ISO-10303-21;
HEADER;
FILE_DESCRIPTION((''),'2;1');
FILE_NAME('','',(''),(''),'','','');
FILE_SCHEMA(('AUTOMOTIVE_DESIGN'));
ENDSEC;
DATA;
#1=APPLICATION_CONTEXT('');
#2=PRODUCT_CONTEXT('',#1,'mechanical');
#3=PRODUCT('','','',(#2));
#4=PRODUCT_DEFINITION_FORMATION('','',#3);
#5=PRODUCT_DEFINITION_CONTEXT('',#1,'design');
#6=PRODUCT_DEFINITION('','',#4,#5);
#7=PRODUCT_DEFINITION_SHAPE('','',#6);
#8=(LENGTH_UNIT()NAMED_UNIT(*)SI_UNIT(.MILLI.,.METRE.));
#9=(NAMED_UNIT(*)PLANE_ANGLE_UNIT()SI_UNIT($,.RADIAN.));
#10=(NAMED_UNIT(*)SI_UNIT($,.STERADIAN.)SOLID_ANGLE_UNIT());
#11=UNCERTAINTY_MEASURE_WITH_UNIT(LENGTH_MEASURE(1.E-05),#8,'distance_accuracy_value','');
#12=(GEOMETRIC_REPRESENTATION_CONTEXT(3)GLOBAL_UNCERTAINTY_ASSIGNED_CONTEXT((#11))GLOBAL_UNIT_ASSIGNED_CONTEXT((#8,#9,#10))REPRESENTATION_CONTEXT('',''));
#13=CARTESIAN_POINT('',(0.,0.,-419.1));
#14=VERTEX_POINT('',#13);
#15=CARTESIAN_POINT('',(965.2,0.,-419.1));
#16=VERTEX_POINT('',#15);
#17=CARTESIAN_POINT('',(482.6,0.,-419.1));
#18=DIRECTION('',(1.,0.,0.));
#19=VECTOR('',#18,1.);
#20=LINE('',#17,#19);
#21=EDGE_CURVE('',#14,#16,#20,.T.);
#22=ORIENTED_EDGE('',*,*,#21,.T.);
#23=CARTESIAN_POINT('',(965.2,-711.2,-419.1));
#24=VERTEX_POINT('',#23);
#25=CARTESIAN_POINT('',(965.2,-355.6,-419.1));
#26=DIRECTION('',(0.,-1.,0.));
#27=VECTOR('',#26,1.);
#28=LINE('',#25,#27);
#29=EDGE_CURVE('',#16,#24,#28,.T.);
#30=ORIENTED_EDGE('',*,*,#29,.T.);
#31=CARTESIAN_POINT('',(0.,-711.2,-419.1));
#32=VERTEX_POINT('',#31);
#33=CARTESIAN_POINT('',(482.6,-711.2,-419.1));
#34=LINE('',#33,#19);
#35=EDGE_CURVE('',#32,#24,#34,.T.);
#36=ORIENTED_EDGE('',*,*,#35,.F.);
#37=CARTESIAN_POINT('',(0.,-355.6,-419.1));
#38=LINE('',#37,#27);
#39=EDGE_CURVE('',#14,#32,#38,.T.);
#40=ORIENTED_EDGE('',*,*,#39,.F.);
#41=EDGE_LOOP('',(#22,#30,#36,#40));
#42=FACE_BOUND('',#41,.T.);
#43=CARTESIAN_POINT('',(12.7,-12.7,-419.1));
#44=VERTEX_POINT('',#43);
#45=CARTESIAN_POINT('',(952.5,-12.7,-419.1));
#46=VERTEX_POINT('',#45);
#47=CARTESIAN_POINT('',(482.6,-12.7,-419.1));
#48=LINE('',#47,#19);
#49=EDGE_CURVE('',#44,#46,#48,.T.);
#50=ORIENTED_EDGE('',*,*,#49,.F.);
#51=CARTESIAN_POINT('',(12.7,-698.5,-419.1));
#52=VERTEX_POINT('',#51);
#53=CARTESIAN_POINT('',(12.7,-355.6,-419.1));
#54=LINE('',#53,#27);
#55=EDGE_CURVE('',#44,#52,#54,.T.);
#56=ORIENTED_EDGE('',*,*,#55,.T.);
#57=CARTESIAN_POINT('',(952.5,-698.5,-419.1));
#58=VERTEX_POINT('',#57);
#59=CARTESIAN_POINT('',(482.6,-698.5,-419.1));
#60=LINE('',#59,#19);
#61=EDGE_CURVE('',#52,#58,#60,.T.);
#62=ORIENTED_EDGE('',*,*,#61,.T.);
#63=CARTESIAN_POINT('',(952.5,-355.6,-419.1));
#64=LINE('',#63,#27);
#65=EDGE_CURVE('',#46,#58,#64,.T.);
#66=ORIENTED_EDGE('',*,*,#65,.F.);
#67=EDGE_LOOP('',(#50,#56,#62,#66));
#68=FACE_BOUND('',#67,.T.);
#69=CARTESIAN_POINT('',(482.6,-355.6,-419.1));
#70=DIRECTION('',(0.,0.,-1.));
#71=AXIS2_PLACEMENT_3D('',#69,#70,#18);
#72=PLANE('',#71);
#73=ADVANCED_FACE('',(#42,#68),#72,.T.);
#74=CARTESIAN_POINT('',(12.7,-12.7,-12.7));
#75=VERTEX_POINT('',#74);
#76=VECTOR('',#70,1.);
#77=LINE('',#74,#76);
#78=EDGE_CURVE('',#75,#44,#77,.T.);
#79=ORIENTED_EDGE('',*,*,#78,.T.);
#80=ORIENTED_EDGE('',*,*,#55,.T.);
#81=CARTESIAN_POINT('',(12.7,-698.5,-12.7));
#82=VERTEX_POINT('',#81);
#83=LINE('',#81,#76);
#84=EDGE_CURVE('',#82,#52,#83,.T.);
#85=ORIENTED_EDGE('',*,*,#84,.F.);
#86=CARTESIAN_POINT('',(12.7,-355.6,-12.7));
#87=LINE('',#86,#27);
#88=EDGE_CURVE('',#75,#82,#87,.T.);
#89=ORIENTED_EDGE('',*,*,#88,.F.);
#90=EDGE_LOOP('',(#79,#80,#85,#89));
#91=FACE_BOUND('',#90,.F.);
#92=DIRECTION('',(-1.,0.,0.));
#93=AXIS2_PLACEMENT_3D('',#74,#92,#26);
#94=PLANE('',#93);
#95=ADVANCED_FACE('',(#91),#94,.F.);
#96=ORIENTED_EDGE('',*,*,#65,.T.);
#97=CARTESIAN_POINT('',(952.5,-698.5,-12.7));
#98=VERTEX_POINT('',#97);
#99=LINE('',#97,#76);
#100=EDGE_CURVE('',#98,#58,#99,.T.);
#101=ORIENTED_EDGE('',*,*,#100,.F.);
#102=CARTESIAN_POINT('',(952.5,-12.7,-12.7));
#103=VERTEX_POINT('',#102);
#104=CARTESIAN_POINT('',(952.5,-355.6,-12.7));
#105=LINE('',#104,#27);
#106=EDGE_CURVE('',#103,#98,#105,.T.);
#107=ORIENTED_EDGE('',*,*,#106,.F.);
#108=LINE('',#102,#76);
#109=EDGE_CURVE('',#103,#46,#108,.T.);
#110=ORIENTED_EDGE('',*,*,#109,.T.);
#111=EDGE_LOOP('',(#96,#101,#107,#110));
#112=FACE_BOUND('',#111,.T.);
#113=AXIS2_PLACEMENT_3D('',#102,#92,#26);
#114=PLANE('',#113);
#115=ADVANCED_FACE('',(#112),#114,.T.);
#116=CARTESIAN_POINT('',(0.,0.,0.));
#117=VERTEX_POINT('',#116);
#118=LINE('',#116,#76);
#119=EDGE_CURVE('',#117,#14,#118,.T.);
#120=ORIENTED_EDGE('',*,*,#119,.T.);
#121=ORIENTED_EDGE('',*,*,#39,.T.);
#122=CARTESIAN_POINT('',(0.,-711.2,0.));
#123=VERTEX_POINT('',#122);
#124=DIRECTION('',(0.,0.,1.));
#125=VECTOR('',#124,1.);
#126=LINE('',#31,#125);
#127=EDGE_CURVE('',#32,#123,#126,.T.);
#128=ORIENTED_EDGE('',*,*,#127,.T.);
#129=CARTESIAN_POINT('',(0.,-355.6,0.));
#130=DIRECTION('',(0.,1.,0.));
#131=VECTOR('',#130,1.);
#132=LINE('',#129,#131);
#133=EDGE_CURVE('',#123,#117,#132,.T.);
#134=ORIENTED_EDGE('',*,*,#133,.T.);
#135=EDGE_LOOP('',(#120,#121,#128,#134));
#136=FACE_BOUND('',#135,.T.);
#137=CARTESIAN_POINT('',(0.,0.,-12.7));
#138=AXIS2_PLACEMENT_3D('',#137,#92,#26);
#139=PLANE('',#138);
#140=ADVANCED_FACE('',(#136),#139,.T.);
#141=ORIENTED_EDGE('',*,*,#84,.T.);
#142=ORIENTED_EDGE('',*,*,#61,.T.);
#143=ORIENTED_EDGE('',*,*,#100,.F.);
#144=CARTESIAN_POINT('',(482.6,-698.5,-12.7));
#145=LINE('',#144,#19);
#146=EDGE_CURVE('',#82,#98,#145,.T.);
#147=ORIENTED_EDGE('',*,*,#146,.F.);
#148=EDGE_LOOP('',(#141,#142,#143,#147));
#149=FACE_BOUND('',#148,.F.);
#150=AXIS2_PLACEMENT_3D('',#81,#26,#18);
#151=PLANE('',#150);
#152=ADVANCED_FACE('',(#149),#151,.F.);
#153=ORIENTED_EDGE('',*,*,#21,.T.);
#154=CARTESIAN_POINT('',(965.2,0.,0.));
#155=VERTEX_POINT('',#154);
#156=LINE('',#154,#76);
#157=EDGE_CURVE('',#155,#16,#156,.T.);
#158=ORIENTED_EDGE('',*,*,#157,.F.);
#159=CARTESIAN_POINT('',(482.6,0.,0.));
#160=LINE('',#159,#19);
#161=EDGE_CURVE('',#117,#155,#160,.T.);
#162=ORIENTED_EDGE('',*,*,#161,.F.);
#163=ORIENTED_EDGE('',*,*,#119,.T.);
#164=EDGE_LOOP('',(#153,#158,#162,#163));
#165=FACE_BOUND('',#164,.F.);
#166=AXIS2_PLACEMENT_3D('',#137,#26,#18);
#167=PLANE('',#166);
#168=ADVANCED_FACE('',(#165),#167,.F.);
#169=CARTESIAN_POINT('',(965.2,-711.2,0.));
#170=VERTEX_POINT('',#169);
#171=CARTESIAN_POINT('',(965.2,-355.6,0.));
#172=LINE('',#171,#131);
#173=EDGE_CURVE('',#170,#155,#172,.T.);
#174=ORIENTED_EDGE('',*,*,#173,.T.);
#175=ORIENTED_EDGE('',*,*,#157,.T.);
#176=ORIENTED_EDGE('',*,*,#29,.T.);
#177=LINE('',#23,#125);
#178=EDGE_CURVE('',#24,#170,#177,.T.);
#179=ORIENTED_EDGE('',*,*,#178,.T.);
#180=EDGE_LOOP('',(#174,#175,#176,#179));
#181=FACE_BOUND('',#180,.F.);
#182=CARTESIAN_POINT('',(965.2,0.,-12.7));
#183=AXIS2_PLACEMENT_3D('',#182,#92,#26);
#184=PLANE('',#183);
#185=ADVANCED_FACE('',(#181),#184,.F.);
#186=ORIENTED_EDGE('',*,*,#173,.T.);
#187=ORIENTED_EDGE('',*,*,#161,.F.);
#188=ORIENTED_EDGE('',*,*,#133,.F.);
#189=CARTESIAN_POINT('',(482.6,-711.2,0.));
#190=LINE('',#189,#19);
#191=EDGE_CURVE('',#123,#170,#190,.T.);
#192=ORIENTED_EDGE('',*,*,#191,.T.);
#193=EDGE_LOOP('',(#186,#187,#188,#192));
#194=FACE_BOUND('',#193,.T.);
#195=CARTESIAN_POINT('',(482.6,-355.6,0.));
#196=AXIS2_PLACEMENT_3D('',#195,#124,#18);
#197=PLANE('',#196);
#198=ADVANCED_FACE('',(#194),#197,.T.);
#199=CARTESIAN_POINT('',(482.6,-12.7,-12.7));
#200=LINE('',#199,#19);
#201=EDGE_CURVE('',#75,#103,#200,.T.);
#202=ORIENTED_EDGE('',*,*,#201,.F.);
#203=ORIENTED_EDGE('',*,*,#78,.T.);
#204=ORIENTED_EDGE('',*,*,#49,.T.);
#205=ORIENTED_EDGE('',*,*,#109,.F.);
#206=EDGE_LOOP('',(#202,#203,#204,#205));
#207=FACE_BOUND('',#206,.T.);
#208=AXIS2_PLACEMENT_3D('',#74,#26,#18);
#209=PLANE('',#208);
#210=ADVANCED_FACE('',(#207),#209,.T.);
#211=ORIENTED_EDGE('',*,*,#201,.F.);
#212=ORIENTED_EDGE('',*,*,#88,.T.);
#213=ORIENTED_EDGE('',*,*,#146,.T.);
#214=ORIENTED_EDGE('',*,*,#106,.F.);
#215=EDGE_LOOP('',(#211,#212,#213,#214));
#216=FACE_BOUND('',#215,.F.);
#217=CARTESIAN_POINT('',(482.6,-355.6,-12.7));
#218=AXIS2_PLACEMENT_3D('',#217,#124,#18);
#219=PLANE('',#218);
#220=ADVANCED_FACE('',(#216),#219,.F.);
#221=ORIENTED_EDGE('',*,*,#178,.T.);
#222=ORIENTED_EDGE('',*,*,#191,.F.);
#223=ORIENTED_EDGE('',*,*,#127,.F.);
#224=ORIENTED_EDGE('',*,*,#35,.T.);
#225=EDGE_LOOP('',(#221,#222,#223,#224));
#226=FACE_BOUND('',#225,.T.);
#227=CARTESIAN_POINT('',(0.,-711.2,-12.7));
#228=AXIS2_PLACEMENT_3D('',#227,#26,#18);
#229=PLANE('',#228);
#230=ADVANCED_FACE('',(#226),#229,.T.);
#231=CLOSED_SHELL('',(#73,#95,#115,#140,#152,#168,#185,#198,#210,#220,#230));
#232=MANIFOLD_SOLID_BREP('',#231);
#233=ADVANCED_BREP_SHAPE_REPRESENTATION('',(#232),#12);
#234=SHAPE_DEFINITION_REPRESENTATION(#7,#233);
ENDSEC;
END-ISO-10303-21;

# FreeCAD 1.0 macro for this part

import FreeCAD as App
import Part
import Sketcher
from FreeCAD import Vector
Q = App.Units.Quantity

doc = App.newDocument("Part")
body = doc.addObject("PartDesign::Body", "Body")

sketch1 = body.newObject("Sketcher::SketchObject", "Sketch")
sketch1.AttachmentSupport = (doc.getObject("XY_Plane"), [""])
sketch1.MapMode = "FlatFace"
sketch1.addGeometry(Part.LineSegment(Vector(0, 0, 0), Vector(0, -711.2, 0)), False)
sketch1.addGeometry(Part.LineSegment(Vector(0, -711.2, 0), Vector(965.2, -711.2, 0)), False)
sketch1.addGeometry(Part.LineSegment(Vector(965.2, -711.2, 0), Vector(965.2, 0, 0)), False)
sketch1.addGeometry(Part.LineSegment(Vector(965.2, 0, 0), Vector(0, 0, 0)), False)
sketch1.addConstraint(Sketcher.Constraint("Coincident", 0, 2, 1, 1))
sketch1.addConstraint(Sketcher.Constraint("Coincident", 1, 2, 2, 1))
sketch1.addConstraint(Sketcher.Constraint("Coincident", 2, 2, 3, 1))
sketch1.addConstraint(Sketcher.Constraint("Coincident", 3, 2, 0, 1))
sketch1.addConstraint(Sketcher.Constraint("Vertical", 0))
sketch1.addConstraint(Sketcher.Constraint("Horizontal", 1))
sketch1.addConstraint(Sketcher.Constraint("Vertical", 2))
sketch1.addConstraint(Sketcher.Constraint("Horizontal", 3))
sketch1.addConstraint(Sketcher.Constraint("Coincident", 3, 2, -1, 1))
sketch1.addConstraint(Sketcher.Constraint("DistanceX", 1, 1, 1, 2, Q("38 in")))
sketch1.addConstraint(Sketcher.Constraint("DistanceY", 0, 2, 0, 1, Q("28 in")))
pad1 = body.newObject("PartDesign::Pad", "Pad")
pad1.Profile = sketch1
pad1.Length = Q("0.5 in")
pad1.Reversed = True

sketch2 = body.newObject("Sketcher::SketchObject", "Sketch001")
sketch2.AttachmentSupport = (doc.getObject("XY_Plane"), [""])
sketch2.MapMode = "FlatFace"
sketch2.AttachmentOffset = App.Placement(Vector(0, 0, -0.5 * 25.4), App.Rotation())
sketch2.addGeometry(Part.LineSegment(Vector(0, -711.2, 0), Vector(0, 0, 0)), False)
sketch2.addGeometry(Part.LineSegment(Vector(0, 0, 0), Vector(965.2, 0, 0)), False)
sketch2.addGeometry(Part.LineSegment(Vector(965.2, 0, 0), Vector(965.2, -711.2, 0)), False)
sketch2.addGeometry(Part.LineSegment(Vector(965.2, -711.2, 0), Vector(0, -711.2, 0)), False)
sketch2.addGeometry(Part.LineSegment(Vector(952.5, -12.7, 0), Vector(12.7, -12.7, 0)), False)
sketch2.addGeometry(Part.LineSegment(Vector(12.7, -12.7, 0), Vector(12.7, -698.5, 0)), False)
sketch2.addGeometry(Part.LineSegment(Vector(12.7, -698.5, 0), Vector(952.5, -698.5, 0)), False)
sketch2.addGeometry(Part.LineSegment(Vector(952.5, -698.5, 0), Vector(952.5, -12.7, 0)), False)
sketch2.addConstraint(Sketcher.Constraint("Coincident", 0, 2, 1, 1))
sketch2.addConstraint(Sketcher.Constraint("Coincident", 1, 2, 2, 1))
sketch2.addConstraint(Sketcher.Constraint("Coincident", 2, 2, 3, 1))
sketch2.addConstraint(Sketcher.Constraint("Coincident", 3, 2, 0, 1))
sketch2.addConstraint(Sketcher.Constraint("Coincident", 4, 2, 5, 1))
sketch2.addConstraint(Sketcher.Constraint("Coincident", 5, 2, 6, 1))
sketch2.addConstraint(Sketcher.Constraint("Coincident", 6, 2, 7, 1))
sketch2.addConstraint(Sketcher.Constraint("Coincident", 7, 2, 4, 1))
sketch2.addConstraint(Sketcher.Constraint("Vertical", 0))
sketch2.addConstraint(Sketcher.Constraint("Horizontal", 1))
sketch2.addConstraint(Sketcher.Constraint("Vertical", 2))
sketch2.addConstraint(Sketcher.Constraint("Horizontal", 3))
sketch2.addConstraint(Sketcher.Constraint("Horizontal", 4))
sketch2.addConstraint(Sketcher.Constraint("Vertical", 5))
sketch2.addConstraint(Sketcher.Constraint("Horizontal", 6))
sketch2.addConstraint(Sketcher.Constraint("Vertical", 7))
sketch2.addConstraint(Sketcher.Constraint("Coincident", 0, 2, -1, 1))
sketch2.addConstraint(Sketcher.Constraint("DistanceX", 1, 1, 1, 2, Q("38 in")))
sketch2.addConstraint(Sketcher.Constraint("DistanceX", 4, 2, 4, 1, Q("37 in")))
sketch2.addConstraint(Sketcher.Constraint("DistanceY", 0, 1, 0, 2, Q("28 in")))
sketch2.addConstraint(Sketcher.Constraint("DistanceY", 5, 2, 5, 1, Q("27 in")))
sketch2.addConstraint(Sketcher.Constraint("DistanceX", -1, 1, 4, 2, Q("0.5 in")))
sketch2.addConstraint(Sketcher.Constraint("DistanceY", 4, 2, -1, 1, Q("0.5 in")))
pad2 = body.newObject("PartDesign::Pad", "Pad001")
pad2.Profile = sketch2
pad2.Length = Q("16 in")
pad2.Reversed = True

doc.recompute()
